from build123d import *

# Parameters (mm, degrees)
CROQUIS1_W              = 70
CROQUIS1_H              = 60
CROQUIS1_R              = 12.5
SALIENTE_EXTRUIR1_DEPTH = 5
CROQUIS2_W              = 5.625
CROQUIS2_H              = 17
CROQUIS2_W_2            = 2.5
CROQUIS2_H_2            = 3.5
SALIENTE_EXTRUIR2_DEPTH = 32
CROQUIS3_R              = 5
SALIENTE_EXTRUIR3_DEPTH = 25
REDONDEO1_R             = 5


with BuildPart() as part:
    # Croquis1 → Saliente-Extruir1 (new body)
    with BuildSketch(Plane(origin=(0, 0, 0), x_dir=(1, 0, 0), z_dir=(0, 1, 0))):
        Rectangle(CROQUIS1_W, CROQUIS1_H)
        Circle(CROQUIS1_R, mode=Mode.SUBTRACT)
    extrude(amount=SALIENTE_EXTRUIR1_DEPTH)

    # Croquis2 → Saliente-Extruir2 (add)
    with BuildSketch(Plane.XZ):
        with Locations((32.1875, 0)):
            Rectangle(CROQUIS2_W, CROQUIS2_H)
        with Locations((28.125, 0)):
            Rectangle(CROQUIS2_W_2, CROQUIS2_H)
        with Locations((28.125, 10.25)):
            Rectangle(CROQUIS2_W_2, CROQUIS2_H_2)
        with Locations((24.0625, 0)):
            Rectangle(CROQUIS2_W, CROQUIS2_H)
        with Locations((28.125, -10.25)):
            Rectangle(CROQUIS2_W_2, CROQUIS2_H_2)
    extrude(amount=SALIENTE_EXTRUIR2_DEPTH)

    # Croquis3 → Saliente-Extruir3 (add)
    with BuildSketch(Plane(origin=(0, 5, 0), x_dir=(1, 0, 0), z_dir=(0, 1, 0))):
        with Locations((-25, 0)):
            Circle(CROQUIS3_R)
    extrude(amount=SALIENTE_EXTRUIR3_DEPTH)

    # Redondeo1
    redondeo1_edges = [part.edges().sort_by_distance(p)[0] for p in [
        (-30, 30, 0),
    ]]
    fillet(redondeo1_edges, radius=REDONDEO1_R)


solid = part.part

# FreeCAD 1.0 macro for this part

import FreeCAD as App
import Part
import Sketcher

V = App.Vector


def edges_at(feature, points):
    """Names of the edges that pass closest to the given points."""
    edges = feature.Shape.Edges
    near = lambda p: min(range(len(edges)), key=lambda i: edges[i].distToShape(Part.Vertex(*p))[0])
    return sorted({f"Edge{near(p) + 1}" for p in points})

doc = App.newDocument("Part")
body = doc.addObject("PartDesign::Body", "Body")

sketch1 = body.newObject("Sketcher::SketchObject", "Sketch")
sketch1.AttachmentSupport = (doc.getObject("XZ_Plane"), [""])
sketch1.MapMode = "FlatFace"
sketch1.addGeometry(Part.LineSegment(V(-35, -30, 0), V(-35, 30, 0)), False)
sketch1.addGeometry(Part.LineSegment(V(-35, 30, 0), V(35, 30, 0)), False)
sketch1.addGeometry(Part.LineSegment(V(35, 30, 0), V(35, -30, 0)), False)
sketch1.addGeometry(Part.LineSegment(V(35, -30, 0), V(-35, -30, 0)), False)
sketch1.addGeometry(Part.Circle(V(0, 0, 0), V(0, 0, 1), 12), False)
sketch1.addConstraint(Sketcher.Constraint("Coincident", 0, 2, 1, 1))
sketch1.addConstraint(Sketcher.Constraint("Coincident", 1, 2, 2, 1))
sketch1.addConstraint(Sketcher.Constraint("Coincident", 2, 2, 3, 1))
sketch1.addConstraint(Sketcher.Constraint("Coincident", 3, 2, 0, 1))
sketch1.addConstraint(Sketcher.Constraint("Vertical", 0))
sketch1.addConstraint(Sketcher.Constraint("Horizontal", 1))
sketch1.addConstraint(Sketcher.Constraint("Vertical", 2))
sketch1.addConstraint(Sketcher.Constraint("Horizontal", 3))
sketch1.addConstraint(Sketcher.Constraint("Coincident", 4, 3, -1, 1))
sketch1.addConstraint(Sketcher.Constraint("Symmetric", 0, 2, 2, 2, -1, 1))
sketch1.addConstraint(Sketcher.Constraint("Diameter", 4, 25.0))
sketch1.addConstraint(Sketcher.Constraint("DistanceX", 1, 1, 1, 2, 70.0))
sketch1.addConstraint(Sketcher.Constraint("DistanceY", 0, 1, 0, 2, 60.0))
pad1 = body.newObject("PartDesign::Pad", "Pad")
pad1.Profile = sketch1
pad1.Length = 5
pad1.Reversed = True

sketch2 = body.newObject("Sketcher::SketchObject", "Sketch001")
sketch2.AttachmentSupport = (doc.getObject("XZ_Plane"), [""])
sketch2.MapMode = "FlatFace"
sketch2.addGeometry(Part.LineSegment(V(35, -8.5, 0), V(35, 8.5, 0)), False)
sketch2.addGeometry(Part.LineSegment(V(35, 8.5, 0), V(29.4, 8.5, 0)), False)
sketch2.addGeometry(Part.LineSegment(V(29.4, 8.5, 0), V(29.4, 12, 0)), False)
sketch2.addGeometry(Part.LineSegment(V(29.4, 12, 0), V(26.9, 12, 0)), False)
sketch2.addGeometry(Part.LineSegment(V(26.9, 12, 0), V(26.9, 8.5, 0)), False)
sketch2.addGeometry(Part.LineSegment(V(26.9, 8.5, 0), V(21.2, 8.5, 0)), False)
sketch2.addGeometry(Part.LineSegment(V(21.2, 8.5, 0), V(21.2, -8.5, 0)), False)
sketch2.addGeometry(Part.LineSegment(V(21.2, -8.5, 0), V(26.9, -8.5, 0)), False)
sketch2.addGeometry(Part.LineSegment(V(26.9, -8.5, 0), V(26.9, -12, 0)), False)
sketch2.addGeometry(Part.LineSegment(V(26.9, -12, 0), V(29.4, -12, 0)), False)
sketch2.addGeometry(Part.LineSegment(V(29.4, -12, 0), V(29.4, -8.5, 0)), False)
sketch2.addGeometry(Part.LineSegment(V(29.4, -8.5, 0), V(35, -8.5, 0)), False)
sketch2.addConstraint(Sketcher.Constraint("Coincident", 0, 2, 1, 1))
sketch2.addConstraint(Sketcher.Constraint("Coincident", 1, 2, 2, 1))
sketch2.addConstraint(Sketcher.Constraint("Coincident", 2, 2, 3, 1))
sketch2.addConstraint(Sketcher.Constraint("Coincident", 3, 2, 4, 1))
sketch2.addConstraint(Sketcher.Constraint("Coincident", 4, 2, 5, 1))
sketch2.addConstraint(Sketcher.Constraint("Coincident", 5, 2, 6, 1))
sketch2.addConstraint(Sketcher.Constraint("Coincident", 6, 2, 7, 1))
sketch2.addConstraint(Sketcher.Constraint("Coincident", 7, 2, 8, 1))
sketch2.addConstraint(Sketcher.Constraint("Coincident", 8, 2, 9, 1))
sketch2.addConstraint(Sketcher.Constraint("Coincident", 9, 2, 10, 1))
sketch2.addConstraint(Sketcher.Constraint("Coincident", 10, 2, 11, 1))
sketch2.addConstraint(Sketcher.Constraint("Coincident", 11, 2, 0, 1))
sketch2.addConstraint(Sketcher.Constraint("Vertical", 0))
sketch2.addConstraint(Sketcher.Constraint("Horizontal", 1))
sketch2.addConstraint(Sketcher.Constraint("Vertical", 2))
sketch2.addConstraint(Sketcher.Constraint("Horizontal", 3))
sketch2.addConstraint(Sketcher.Constraint("Vertical", 4))
sketch2.addConstraint(Sketcher.Constraint("Horizontal", 5))
sketch2.addConstraint(Sketcher.Constraint("Vertical", 6))
sketch2.addConstraint(Sketcher.Constraint("Horizontal", 7))
sketch2.addConstraint(Sketcher.Constraint("Vertical", 8))
sketch2.addConstraint(Sketcher.Constraint("Horizontal", 9))
sketch2.addConstraint(Sketcher.Constraint("Vertical", 10))
sketch2.addConstraint(Sketcher.Constraint("Horizontal", 11))
sketch2.addConstraint(Sketcher.Constraint("Symmetric", 4, 2, 7, 2, -1))
sketch2.addConstraint(Sketcher.Constraint("Symmetric", 2, 2, 9, 2, -1))
sketch2.addConstraint(Sketcher.Constraint("Horizontal", 1, 2, 4, 2))
sketch2.addConstraint(Sketcher.Constraint("Horizontal", 7, 2, 10, 2))
sketch2.addConstraint(Sketcher.Constraint("Equal", 1, 5))
sketch2.addConstraint(Sketcher.Constraint("DistanceY", 0, 1, 0, 2, 17.0))
sketch2.addConstraint(Sketcher.Constraint("DistanceX", 3, 2, 3, 1, 2.5))
sketch2.addConstraint(Sketcher.Constraint("DistanceY", 2, 1, 2, 2, 3.5))
sketch2.addConstraint(Sketcher.Constraint("DistanceX", -1, 1, 0, 2, 35.0))
sketch2.addConstraint(Sketcher.Constraint("DistanceX", 1, 2, 1, 1, 5.625))
pad2 = body.newObject("PartDesign::Pad", "Pad001")
pad2.Profile = sketch2
pad2.Length = 32

sketch3 = body.newObject("Sketcher::SketchObject", "Sketch002")
sketch3.AttachmentSupport = (doc.getObject("XZ_Plane"), [""])
sketch3.MapMode = "FlatFace"
sketch3.AttachmentOffset = App.Placement(V(0, 0, -5), App.Rotation())
sketch3.addGeometry(Part.Circle(V(-25, 0, 0), V(0, 0, 1), 5), False)
sketch3.addConstraint(Sketcher.Constraint("PointOnObject", 0, 3, -1))
sketch3.addConstraint(Sketcher.Constraint("Diameter", 0, 10.0))
sketch3.addConstraint(Sketcher.Constraint("DistanceX", 0, 3, -1, 1, 25.0))
pad3 = body.newObject("PartDesign::Pad", "Pad002")
pad3.Profile = sketch3
pad3.Length = 25
pad3.Reversed = True
doc.recompute()

fillet = body.newObject("PartDesign::Fillet", "Fillet")
fillet.Base = (pad3, edges_at(pad3, [(-30, 30, 0)]))
fillet.Radius = 5

doc.recompute()
